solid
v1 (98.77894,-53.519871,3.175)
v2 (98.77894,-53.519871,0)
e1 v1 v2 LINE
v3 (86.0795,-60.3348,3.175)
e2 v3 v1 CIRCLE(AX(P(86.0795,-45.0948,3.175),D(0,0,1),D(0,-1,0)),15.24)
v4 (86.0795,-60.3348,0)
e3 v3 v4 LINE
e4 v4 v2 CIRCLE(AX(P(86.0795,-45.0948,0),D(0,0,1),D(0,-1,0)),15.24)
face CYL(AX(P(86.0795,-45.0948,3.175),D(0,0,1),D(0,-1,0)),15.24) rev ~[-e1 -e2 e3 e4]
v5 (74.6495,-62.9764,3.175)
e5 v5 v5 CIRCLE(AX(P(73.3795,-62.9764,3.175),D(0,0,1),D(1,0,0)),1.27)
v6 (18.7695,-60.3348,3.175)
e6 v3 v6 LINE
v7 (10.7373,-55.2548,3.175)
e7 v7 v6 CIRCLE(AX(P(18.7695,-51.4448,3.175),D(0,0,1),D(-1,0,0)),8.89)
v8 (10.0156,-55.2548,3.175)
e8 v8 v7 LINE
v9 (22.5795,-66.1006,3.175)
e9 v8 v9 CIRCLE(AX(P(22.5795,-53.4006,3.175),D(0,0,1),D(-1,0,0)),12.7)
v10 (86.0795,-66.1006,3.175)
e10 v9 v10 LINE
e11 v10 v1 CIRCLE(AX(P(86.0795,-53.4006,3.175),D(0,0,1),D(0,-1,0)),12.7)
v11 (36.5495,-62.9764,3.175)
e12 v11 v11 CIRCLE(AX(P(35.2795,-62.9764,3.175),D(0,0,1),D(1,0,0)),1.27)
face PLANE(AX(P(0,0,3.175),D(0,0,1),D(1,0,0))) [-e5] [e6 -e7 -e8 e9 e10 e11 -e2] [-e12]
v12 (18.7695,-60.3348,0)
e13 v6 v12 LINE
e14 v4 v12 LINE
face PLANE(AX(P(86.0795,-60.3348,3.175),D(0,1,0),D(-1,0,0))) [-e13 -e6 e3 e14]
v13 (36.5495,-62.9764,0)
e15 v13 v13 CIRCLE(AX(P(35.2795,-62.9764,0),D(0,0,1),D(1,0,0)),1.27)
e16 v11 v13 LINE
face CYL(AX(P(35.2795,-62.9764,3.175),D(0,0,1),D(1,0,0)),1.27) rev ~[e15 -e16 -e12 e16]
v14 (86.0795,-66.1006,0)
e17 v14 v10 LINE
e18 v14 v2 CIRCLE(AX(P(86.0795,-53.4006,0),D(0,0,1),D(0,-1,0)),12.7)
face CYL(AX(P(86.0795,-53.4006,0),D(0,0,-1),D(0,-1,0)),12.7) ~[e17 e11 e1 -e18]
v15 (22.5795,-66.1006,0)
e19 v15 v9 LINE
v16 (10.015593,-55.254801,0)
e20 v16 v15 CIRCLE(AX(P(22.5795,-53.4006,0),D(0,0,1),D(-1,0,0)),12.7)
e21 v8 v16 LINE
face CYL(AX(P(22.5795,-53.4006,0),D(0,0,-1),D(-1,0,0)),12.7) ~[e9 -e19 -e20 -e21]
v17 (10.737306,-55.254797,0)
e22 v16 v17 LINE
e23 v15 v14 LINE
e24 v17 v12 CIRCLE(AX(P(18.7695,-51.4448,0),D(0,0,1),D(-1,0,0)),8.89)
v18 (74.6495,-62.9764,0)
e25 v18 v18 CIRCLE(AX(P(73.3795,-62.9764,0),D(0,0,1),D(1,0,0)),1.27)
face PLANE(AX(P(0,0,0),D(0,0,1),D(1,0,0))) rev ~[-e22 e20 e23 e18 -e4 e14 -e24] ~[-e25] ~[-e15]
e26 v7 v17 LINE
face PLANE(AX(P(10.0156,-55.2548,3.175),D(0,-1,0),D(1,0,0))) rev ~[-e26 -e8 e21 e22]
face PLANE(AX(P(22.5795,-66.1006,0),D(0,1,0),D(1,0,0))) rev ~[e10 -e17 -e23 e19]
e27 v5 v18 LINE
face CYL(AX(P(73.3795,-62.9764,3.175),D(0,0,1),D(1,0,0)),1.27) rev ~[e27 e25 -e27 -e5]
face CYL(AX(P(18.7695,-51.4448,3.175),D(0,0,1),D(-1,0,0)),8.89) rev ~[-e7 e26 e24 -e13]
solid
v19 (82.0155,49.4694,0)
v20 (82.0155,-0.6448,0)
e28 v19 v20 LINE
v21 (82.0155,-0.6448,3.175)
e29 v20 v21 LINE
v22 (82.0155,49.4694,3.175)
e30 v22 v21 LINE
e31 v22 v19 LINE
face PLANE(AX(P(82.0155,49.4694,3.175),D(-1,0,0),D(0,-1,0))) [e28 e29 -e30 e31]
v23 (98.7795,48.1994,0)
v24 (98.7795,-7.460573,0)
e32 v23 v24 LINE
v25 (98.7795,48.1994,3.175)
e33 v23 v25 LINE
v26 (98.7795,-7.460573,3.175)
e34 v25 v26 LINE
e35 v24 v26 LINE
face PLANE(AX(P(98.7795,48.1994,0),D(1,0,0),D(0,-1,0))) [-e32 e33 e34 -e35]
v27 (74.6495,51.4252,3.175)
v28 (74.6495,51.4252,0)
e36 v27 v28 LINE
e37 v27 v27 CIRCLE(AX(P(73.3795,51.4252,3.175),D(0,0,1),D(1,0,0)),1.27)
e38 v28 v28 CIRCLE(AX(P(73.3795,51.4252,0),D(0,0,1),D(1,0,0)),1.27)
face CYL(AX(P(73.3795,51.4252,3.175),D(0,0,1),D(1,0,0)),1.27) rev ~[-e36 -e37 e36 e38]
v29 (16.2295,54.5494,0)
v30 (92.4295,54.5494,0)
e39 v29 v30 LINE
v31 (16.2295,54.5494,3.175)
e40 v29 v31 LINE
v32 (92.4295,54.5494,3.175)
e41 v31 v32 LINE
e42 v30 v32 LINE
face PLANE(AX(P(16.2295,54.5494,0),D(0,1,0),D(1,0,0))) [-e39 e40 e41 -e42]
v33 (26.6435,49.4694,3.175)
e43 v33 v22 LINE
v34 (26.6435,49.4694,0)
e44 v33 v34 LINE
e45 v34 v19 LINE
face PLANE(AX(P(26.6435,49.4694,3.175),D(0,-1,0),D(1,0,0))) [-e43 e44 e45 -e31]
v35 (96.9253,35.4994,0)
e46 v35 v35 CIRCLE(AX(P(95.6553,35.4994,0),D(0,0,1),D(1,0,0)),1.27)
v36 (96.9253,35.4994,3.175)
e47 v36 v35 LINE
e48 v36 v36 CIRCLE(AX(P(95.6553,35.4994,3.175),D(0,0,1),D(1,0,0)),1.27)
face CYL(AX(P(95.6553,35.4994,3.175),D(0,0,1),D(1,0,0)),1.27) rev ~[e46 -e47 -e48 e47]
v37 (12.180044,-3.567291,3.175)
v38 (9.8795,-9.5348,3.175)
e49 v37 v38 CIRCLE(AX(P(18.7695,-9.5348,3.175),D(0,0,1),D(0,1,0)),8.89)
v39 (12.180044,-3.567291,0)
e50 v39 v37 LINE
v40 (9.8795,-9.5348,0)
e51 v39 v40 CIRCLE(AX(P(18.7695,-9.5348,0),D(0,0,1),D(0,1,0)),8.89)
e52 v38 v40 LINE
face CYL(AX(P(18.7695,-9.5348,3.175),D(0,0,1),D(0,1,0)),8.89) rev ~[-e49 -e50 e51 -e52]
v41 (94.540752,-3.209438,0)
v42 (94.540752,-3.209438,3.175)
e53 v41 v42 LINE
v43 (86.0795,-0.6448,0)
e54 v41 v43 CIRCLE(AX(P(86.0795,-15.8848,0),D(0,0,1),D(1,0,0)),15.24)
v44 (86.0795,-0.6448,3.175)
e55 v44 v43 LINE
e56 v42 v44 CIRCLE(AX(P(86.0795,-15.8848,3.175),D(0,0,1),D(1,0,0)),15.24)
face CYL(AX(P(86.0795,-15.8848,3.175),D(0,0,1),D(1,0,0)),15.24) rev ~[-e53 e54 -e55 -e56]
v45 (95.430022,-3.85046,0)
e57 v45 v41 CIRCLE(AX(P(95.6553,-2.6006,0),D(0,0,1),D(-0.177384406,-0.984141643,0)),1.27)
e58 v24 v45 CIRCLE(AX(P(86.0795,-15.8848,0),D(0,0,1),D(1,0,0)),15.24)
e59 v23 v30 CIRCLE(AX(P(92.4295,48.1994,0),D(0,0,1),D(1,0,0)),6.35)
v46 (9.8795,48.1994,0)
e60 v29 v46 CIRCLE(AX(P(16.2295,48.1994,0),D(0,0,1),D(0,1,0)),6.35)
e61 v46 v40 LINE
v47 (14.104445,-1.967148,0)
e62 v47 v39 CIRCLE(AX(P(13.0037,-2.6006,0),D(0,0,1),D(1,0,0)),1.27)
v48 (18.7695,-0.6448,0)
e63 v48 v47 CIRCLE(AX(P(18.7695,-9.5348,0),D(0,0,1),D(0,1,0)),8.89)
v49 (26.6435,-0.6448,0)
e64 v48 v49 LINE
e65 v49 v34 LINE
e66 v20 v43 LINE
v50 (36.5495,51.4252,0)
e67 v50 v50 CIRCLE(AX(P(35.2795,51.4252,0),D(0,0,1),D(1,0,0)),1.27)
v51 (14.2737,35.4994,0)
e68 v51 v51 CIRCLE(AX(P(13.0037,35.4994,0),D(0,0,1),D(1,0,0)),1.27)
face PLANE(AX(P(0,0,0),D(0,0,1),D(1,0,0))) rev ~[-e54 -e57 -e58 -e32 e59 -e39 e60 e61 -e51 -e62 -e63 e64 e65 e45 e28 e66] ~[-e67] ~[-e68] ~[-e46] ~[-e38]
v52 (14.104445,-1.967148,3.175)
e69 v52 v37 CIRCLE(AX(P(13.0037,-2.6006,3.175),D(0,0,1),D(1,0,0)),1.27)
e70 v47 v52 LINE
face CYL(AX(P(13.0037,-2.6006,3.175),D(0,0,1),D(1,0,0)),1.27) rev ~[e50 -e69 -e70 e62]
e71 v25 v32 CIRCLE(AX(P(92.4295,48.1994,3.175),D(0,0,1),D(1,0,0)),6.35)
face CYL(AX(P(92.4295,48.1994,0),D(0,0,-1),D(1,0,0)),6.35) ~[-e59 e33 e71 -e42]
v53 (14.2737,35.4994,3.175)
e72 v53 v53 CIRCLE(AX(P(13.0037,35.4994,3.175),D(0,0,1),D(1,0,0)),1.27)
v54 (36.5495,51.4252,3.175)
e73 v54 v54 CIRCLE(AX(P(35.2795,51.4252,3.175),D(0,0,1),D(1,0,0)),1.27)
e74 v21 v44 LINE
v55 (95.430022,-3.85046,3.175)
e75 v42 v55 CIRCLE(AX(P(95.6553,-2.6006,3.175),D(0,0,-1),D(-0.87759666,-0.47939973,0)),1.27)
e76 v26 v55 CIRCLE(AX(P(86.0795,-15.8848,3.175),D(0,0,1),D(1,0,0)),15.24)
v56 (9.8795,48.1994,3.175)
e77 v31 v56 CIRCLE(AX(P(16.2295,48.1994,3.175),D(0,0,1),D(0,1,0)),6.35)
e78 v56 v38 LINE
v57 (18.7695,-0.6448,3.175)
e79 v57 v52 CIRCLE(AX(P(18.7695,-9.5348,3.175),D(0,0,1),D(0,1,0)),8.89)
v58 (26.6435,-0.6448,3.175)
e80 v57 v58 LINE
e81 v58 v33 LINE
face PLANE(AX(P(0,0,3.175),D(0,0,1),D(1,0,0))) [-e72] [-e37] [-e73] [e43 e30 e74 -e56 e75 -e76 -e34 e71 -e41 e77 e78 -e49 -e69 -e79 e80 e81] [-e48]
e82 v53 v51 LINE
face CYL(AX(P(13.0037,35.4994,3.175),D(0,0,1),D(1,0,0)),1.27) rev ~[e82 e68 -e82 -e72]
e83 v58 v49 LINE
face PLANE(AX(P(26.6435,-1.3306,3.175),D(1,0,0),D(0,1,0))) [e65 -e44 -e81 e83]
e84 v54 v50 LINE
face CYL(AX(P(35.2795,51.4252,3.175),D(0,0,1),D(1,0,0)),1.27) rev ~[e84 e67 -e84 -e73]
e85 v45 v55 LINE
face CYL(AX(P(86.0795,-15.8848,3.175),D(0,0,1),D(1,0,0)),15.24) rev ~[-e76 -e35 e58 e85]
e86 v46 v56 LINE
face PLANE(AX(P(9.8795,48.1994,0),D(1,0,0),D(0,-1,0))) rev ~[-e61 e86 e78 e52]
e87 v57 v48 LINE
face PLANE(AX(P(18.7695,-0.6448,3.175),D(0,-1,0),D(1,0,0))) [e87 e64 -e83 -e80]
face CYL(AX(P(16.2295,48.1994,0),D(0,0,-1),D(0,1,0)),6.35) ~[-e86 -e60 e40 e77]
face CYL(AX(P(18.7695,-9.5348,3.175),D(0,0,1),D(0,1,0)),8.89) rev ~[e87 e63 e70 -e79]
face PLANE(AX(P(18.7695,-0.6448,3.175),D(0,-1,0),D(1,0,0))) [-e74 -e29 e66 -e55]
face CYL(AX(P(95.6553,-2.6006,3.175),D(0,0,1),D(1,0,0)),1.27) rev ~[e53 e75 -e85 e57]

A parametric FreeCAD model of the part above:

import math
import FreeCAD as App
import Part
import Sketcher
Q = App.Units.Quantity


def add_polygon(sketch, points):
    """Adds a closed chain of lines whose ends are joined by coincident constraints."""
    first, n = sketch.GeometryCount, len(points)
    for a, b in zip(points, points[1:] + points[:1]):
        sketch.addGeometry(Part.LineSegment(App.Vector(*a, 0), App.Vector(*b, 0)), False)
    for i in range(n):
        sketch.addConstraint(Sketcher.Constraint("Coincident", first + i, 2, first + (i + 1) % n, 1))

doc = App.newDocument("Part")
params = doc.addObject("Spreadsheet::Sheet", "Params")
for row, (alias, value) in enumerate([
    ("sketch1_radius", "0.5 in"),
    ("sketch1_radius2", "0.25 in"),
    ("sketch1_height", "4 in"),
    ("pad1_length", "0.125 in"),
    ("sketch2_height", "2 in"),
    ("sketch2_width", "2.18 in"),
    ("sketch3_radius", "0.6 in"),
    ("sketch3_width", "0.5 in"),
    ("sketch3_radius2", "0.35 in"),
    ("sketch4_radius", "0.5 in"),
    ("sketch4_radius2", "0.35 in"),
    ("sketch4_height", "0.077 in"),
    ("sketch5_diameter", "0.1 in"),
], start=1):
    params.set(f"A{row}", alias)
    params.set(f"B{row}", "=" + value)
    params.setAlias(f"B{row}", alias)

body = doc.addObject("PartDesign::Body", "Body")
body.AllowCompound = True

# Sketch on XY plane
sketch1 = body.newObject("Sketcher::SketchObject", "Sketch")
sketch1.AttachmentSupport = (doc.getObject("XY_Plane"), [""])
sketch1.MapMode = "FlatFace"
sketch1.addGeometry(Part.ArcOfCircle(Part.Circle(App.Vector(16, 48, 0), App.Vector(0, 0, 1), 6), math.radians(90), math.radians(180)), False)
sketch1.addGeometry(Part.LineSegment(App.Vector(10, 48, 0), App.Vector(10, -53, 0)), False)
sketch1.addGeometry(Part.ArcOfCircle(Part.Circle(App.Vector(23, -53, 0), App.Vector(0, 0, 1), 13), math.radians(180), math.radians(270)), False)
sketch1.addGeometry(Part.LineSegment(App.Vector(23, -66, 0), App.Vector(86, -66, 0)), False)
sketch1.addGeometry(Part.ArcOfCircle(Part.Circle(App.Vector(86, -53, 0), App.Vector(0, 0, 1), 13), math.radians(-90), math.radians(0)), False)
sketch1.addGeometry(Part.LineSegment(App.Vector(99, -53, 0), App.Vector(99, 48, 0)), False)
sketch1.addGeometry(Part.ArcOfCircle(Part.Circle(App.Vector(92, 48, 0), App.Vector(0, 0, 1), 6), math.radians(0), math.radians(90)), False)
sketch1.addGeometry(Part.LineSegment(App.Vector(92, 55, 0), App.Vector(16, 55, 0)), False)
sketch1.addConstraint(Sketcher.Constraint("Tangent", 0, 2, 1, 1))
sketch1.addConstraint(Sketcher.Constraint("Tangent", 1, 2, 2, 1))
sketch1.addConstraint(Sketcher.Constraint("Tangent", 2, 2, 3, 1))
sketch1.addConstraint(Sketcher.Constraint("Tangent", 3, 2, 4, 1))
sketch1.addConstraint(Sketcher.Constraint("Tangent", 4, 2, 5, 1))
sketch1.addConstraint(Sketcher.Constraint("Tangent", 5, 2, 6, 1))
sketch1.addConstraint(Sketcher.Constraint("Tangent", 6, 2, 7, 1))
sketch1.addConstraint(Sketcher.Constraint("Tangent", 7, 2, 0, 1))
sketch1.addConstraint(Sketcher.Constraint("Vertical", 1))
sketch1.addConstraint(Sketcher.Constraint("Horizontal", 3))
sketch1.addConstraint(Sketcher.Constraint("Vertical", 5))
sketch1.addConstraint(Sketcher.Constraint("Horizontal", 7))
sketch1.addConstraint(Sketcher.Constraint("Equal", 2, 4))
sketch1.addConstraint(Sketcher.Constraint("Equal", 0, 6))
sketch1.addConstraint(Sketcher.Constraint("Radius", 2, Q("0.5 in")))
sketch1.addConstraint(Sketcher.Constraint("Radius", 0, Q("0.25 in")))
sketch1.addConstraint(Sketcher.Constraint("DistanceX", 1, 2, 4, 2, Q("3.5 in")))
sketch1.addConstraint(Sketcher.Constraint("DistanceY", 1, 2, 1, 1, Q("4 in")))
sketch1.addConstraint(Sketcher.Constraint("DistanceX", -1, 1, 0, 3, 16.2295))
sketch1.addConstraint(Sketcher.Constraint("DistanceY", -1, 1, 0, 3, 48.1994))
sketch1.setExpression("Constraints[14]", "Params.sketch1_radius")
sketch1.setExpression("Constraints[15]", "Params.sketch1_radius2")
sketch1.setExpression("Constraints[17]", "Params.sketch1_height")
pad1 = body.newObject("PartDesign::Pad", "Pad")
pad1.Profile = sketch1
pad1.setExpression("Length", "Params.pad1_length")

# Sketch on XY plane
sketch2 = body.newObject("Sketcher::SketchObject", "Sketch001")
sketch2.AttachmentSupport = (doc.getObject("XY_Plane"), [""])
sketch2.MapMode = "FlatFace"
sketch2.AttachmentOffset = App.Placement(App.Vector(0, 0, 0.125 * 25.4), App.Rotation())
add_polygon(sketch2, [(82, 49), (27, 49), (27, -1), (82, -1)])  # lines 0-3
sketch2.addConstraint(Sketcher.Constraint("Horizontal", 0))
sketch2.addConstraint(Sketcher.Constraint("Vertical", 1))
sketch2.addConstraint(Sketcher.Constraint("Horizontal", 2))
sketch2.addConstraint(Sketcher.Constraint("Vertical", 3))
sketch2.addConstraint(Sketcher.Constraint("DistanceY", 1, 2, 1, 1, Q("2 in")))
sketch2.addConstraint(Sketcher.Constraint("DistanceX", 0, 2, 0, 1, Q("2.18 in")))
sketch2.addConstraint(Sketcher.Constraint("DistanceX", -1, 1, 0, 2, 26.6435))
sketch2.addConstraint(Sketcher.Constraint("DistanceY", -1, 1, 0, 2, 49.4694))
sketch2.setExpression("Constraints[8]", "Params.sketch2_height")
sketch2.setExpression("Constraints[9]", "Params.sketch2_width")
pocket1 = body.newObject("PartDesign::Pocket", "Pocket")
pocket1.Profile = sketch2
pocket1.Type = "ThroughAll"

# Sketch on XY plane
sketch3 = body.newObject("Sketcher::SketchObject", "Sketch002")
sketch3.AttachmentSupport = (doc.getObject("XY_Plane"), [""])
sketch3.MapMode = "FlatFace"
sketch3.AttachmentOffset = App.Placement(App.Vector(0, 0, 0.125 * 25.4), App.Rotation())
sketch3.addGeometry(Part.LineSegment(App.Vector(10, -10, 0), App.Vector(10, -51, 0)), False)
sketch3.addGeometry(Part.ArcOfCircle(Part.Circle(App.Vector(19, -51, 0), App.Vector(0, 0, 1), 9), math.radians(180), math.radians(270)), False)
sketch3.addGeometry(Part.LineSegment(App.Vector(19, -60, 0), App.Vector(86, -60, 0)), False)
sketch3.addGeometry(Part.ArcOfCircle(Part.Circle(App.Vector(86, -45, 0), App.Vector(0, 0, 1), 15), math.radians(-90), math.radians(0)), False)
sketch3.addGeometry(Part.LineSegment(App.Vector(101, -45, 0), App.Vector(101, -16, 0)), False)
sketch3.addGeometry(Part.ArcOfCircle(Part.Circle(App.Vector(86, -16, 0), App.Vector(0, 0, 1), 15), math.radians(0), math.radians(34)), False)
sketch3.addGeometry(Part.ArcOfCircle(Part.Circle(App.Vector(86, -16, 0), App.Vector(0, 0, 1), 15), math.radians(34), math.radians(90)), False)
sketch3.addGeometry(Part.LineSegment(App.Vector(86, -1, 0), App.Vector(19, -1, 0)), False)
sketch3.addGeometry(Part.ArcOfCircle(Part.Circle(App.Vector(19, -10, 0), App.Vector(0, 0, 1), 9), math.radians(90), math.radians(180)), False)
sketch3.addConstraint(Sketcher.Constraint("Tangent", 0, 2, 1, 1))
sketch3.addConstraint(Sketcher.Constraint("Tangent", 1, 2, 2, 1))
sketch3.addConstraint(Sketcher.Constraint("Tangent", 2, 2, 3, 1))
sketch3.addConstraint(Sketcher.Constraint("Tangent", 3, 2, 4, 1))
sketch3.addConstraint(Sketcher.Constraint("Tangent", 4, 2, 5, 1))
sketch3.addConstraint(Sketcher.Constraint("Tangent", 5, 2, 6, 1))
sketch3.addConstraint(Sketcher.Constraint("Tangent", 6, 2, 7, 1))
sketch3.addConstraint(Sketcher.Constraint("Tangent", 7, 2, 8, 1))
sketch3.addConstraint(Sketcher.Constraint("Tangent", 8, 2, 0, 1))
sketch3.addConstraint(Sketcher.Constraint("Vertical", 0))
sketch3.addConstraint(Sketcher.Constraint("Horizontal", 2))
sketch3.addConstraint(Sketcher.Constraint("Vertical", 4))
sketch3.addConstraint(Sketcher.Constraint("Horizontal", 7))
sketch3.addConstraint(Sketcher.Constraint("Equal", 3, 5))
sketch3.addConstraint(Sketcher.Constraint("Equal", 5, 6))
sketch3.addConstraint(Sketcher.Constraint("Equal", 1, 8))
sketch3.addConstraint(Sketcher.Constraint("Radius", 3, Q("0.6 in")))
sketch3.addConstraint(Sketcher.Constraint("DistanceX", 5, 3, 5, 2, Q("0.5 in")))
sketch3.addConstraint(Sketcher.Constraint("Radius", 1, Q("0.35 in")))
sketch3.addConstraint(Sketcher.Constraint("DistanceX", 0, 2, 3, 3, Q("3 in")))
sketch3.addConstraint(Sketcher.Constraint("DistanceY", 1, 2, 8, 3, Q("2 in")))
sketch3.addConstraint(Sketcher.Constraint("DistanceX", -1, 1, 1, 3, 18.7695))
sketch3.addConstraint(Sketcher.Constraint("DistanceY", 1, 3, -1, 1, 51.4448))
sketch3.setExpression("Constraints[16]", "Params.sketch3_radius")
sketch3.setExpression("Constraints[17]", "Params.sketch3_width")
sketch3.setExpression("Constraints[18]", "Params.sketch3_radius2")
pocket2 = body.newObject("PartDesign::Pocket", "Pocket001")
pocket2.Profile = sketch3
pocket2.Type = "ThroughAll"

# Sketch on XY plane
sketch4 = body.newObject("Sketcher::SketchObject", "Sketch003")
sketch4.AttachmentSupport = (doc.getObject("XY_Plane"), [""])
sketch4.MapMode = "FlatFace"
sketch4.AttachmentOffset = App.Placement(App.Vector(0, 0, 0.125 * 25.4), App.Rotation())
sketch4.addGeometry(Part.ArcOfCircle(Part.Circle(App.Vector(18.8, -51.4, 0), App.Vector(0, 0, 1), 8.9), math.radians(180), math.radians(205)), False)
sketch4.addGeometry(Part.LineSegment(App.Vector(9.9, -51.4, 0), App.Vector(9.9, -53.4, 0)), False)
sketch4.addGeometry(Part.ArcOfCircle(Part.Circle(App.Vector(22.6, -53.4, 0), App.Vector(0, 0, 1), 12.7), math.radians(180), math.radians(188.4)), False)
sketch4.addGeometry(Part.LineSegment(App.Vector(10, -55.3, 0), App.Vector(10.7, -55.3, 0)), False)
sketch4.addConstraint(Sketcher.Constraint("Tangent", 0, 1, 1, 1))
sketch4.addConstraint(Sketcher.Constraint("Tangent", 1, 2, 2, 1))
sketch4.addConstraint(Sketcher.Constraint("Coincident", 2, 2, 3, 1))
sketch4.addConstraint(Sketcher.Constraint("Coincident", 3, 2, 0, 2))
sketch4.addConstraint(Sketcher.Constraint("Vertical", 1))
sketch4.addConstraint(Sketcher.Constraint("Horizontal", 3))
sketch4.addConstraint(Sketcher.Constraint("Radius", 2, Q("0.5 in")))
sketch4.addConstraint(Sketcher.Constraint("Radius", 0, Q("0.35 in")))
sketch4.addConstraint(Sketcher.Constraint("DistanceY", 2, 2, 0, 1, Q("0.15 in")))
sketch4.addConstraint(Sketcher.Constraint("DistanceY", 1, 2, 1, 1, Q("0.077 in")))
sketch4.addConstraint(Sketcher.Constraint("DistanceX", -1, 1, 0, 3, 18.7695))
sketch4.addConstraint(Sketcher.Constraint("DistanceY", 0, 3, -1, 1, 51.4448))
sketch4.setExpression("Constraints[6]", "Params.sketch4_radius")
sketch4.setExpression("Constraints[7]", "Params.sketch4_radius2")
sketch4.setExpression("Constraints[9]", "Params.sketch4_height")
pocket3 = body.newObject("PartDesign::Pocket", "Pocket002")
pocket3.Profile = sketch4
pocket3.Type = "ThroughAll"

# Sketch on XY plane
sketch5 = body.newObject("Sketcher::SketchObject", "Sketch004")
sketch5.AttachmentSupport = (doc.getObject("XY_Plane"), [""])
sketch5.MapMode = "FlatFace"
sketch5.AttachmentOffset = App.Placement(App.Vector(0, 0, 0.125 * 25.4), App.Rotation())
sketch5.addGeometry(Part.Circle(App.Vector(13, 35.5, 0), App.Vector(0, 0, 1), 1.3), False)
sketch5.addGeometry(Part.Circle(App.Vector(13, -2.6, 0), App.Vector(0, 0, 1), 1.3), False)
sketch5.addGeometry(Part.Circle(App.Vector(35.3, 51.4, 0), App.Vector(0, 0, 1), 1.3), False)
sketch5.addGeometry(Part.Circle(App.Vector(73.4, 51.4, 0), App.Vector(0, 0, 1), 1.3), False)
sketch5.addGeometry(Part.Circle(App.Vector(95.7, 35.5, 0), App.Vector(0, 0, 1), 1.3), False)
sketch5.addGeometry(Part.Circle(App.Vector(95.7, -2.6, 0), App.Vector(0, 0, 1), 1.3), False)
sketch5.addGeometry(Part.Circle(App.Vector(73.4, -63, 0), App.Vector(0, 0, 1), 1.3), False)
sketch5.addGeometry(Part.Circle(App.Vector(35.3, -63, 0), App.Vector(0, 0, 1), 1.3), False)
sketch5.addConstraint(Sketcher.Constraint("Equal", 0, 1))
sketch5.addConstraint(Sketcher.Constraint("Equal", 1, 2))
sketch5.addConstraint(Sketcher.Constraint("Equal", 2, 3))
sketch5.addConstraint(Sketcher.Constraint("Equal", 3, 4))
sketch5.addConstraint(Sketcher.Constraint("Equal", 4, 5))
sketch5.addConstraint(Sketcher.Constraint("Equal", 5, 6))
sketch5.addConstraint(Sketcher.Constraint("Equal", 6, 7))
sketch5.addConstraint(Sketcher.Constraint("Horizontal", 2, 3, 3, 3))
sketch5.addConstraint(Sketcher.Constraint("Horizontal", 0, 3, 4, 3))
sketch5.addConstraint(Sketcher.Constraint("Horizontal", 1, 3, 5, 3))
sketch5.addConstraint(Sketcher.Constraint("Horizontal", 6, 3, 7, 3))
sketch5.addConstraint(Sketcher.Constraint("Vertical", 0, 3, 1, 3))
sketch5.addConstraint(Sketcher.Constraint("Vertical", 4, 3, 5, 3))
sketch5.addConstraint(Sketcher.Constraint("Vertical", 3, 3, 6, 3))
sketch5.addConstraint(Sketcher.Constraint("Vertical", 2, 3, 7, 3))
sketch5.addConstraint(Sketcher.Constraint("Diameter", 0, Q("0.1 in")))
sketch5.addConstraint(Sketcher.Constraint("DistanceY", 1, 3, 0, 3, Q("1.5 in")))
sketch5.addConstraint(Sketcher.Constraint("DistanceX", 2, 3, 3, 3, Q("1.5 in")))
sketch5.addConstraint(Sketcher.Constraint("DistanceX", 0, 3, 2, 3, Q("0.877 in")))
sketch5.addConstraint(Sketcher.Constraint("DistanceY", 0, 3, 2, 3, Q("0.627 in")))
sketch5.addConstraint(Sketcher.Constraint("DistanceX", 3, 3, 4, 3, Q("0.877 in")))
sketch5.addConstraint(Sketcher.Constraint("DistanceY", 6, 3, 5, 3, Q("2.377 in")))
sketch5.addConstraint(Sketcher.Constraint("DistanceX", -1, 1, 0, 3, 13.0037))
sketch5.addConstraint(Sketcher.Constraint("DistanceY", -1, 1, 0, 3, 35.4994))
sketch5.setExpression("Constraints[15]", "Params.sketch5_diameter")
pocket4 = body.newObject("PartDesign::Pocket", "Pocket003")
pocket4.Profile = sketch5
pocket4.Type = "ThroughAll"

doc.recompute()
